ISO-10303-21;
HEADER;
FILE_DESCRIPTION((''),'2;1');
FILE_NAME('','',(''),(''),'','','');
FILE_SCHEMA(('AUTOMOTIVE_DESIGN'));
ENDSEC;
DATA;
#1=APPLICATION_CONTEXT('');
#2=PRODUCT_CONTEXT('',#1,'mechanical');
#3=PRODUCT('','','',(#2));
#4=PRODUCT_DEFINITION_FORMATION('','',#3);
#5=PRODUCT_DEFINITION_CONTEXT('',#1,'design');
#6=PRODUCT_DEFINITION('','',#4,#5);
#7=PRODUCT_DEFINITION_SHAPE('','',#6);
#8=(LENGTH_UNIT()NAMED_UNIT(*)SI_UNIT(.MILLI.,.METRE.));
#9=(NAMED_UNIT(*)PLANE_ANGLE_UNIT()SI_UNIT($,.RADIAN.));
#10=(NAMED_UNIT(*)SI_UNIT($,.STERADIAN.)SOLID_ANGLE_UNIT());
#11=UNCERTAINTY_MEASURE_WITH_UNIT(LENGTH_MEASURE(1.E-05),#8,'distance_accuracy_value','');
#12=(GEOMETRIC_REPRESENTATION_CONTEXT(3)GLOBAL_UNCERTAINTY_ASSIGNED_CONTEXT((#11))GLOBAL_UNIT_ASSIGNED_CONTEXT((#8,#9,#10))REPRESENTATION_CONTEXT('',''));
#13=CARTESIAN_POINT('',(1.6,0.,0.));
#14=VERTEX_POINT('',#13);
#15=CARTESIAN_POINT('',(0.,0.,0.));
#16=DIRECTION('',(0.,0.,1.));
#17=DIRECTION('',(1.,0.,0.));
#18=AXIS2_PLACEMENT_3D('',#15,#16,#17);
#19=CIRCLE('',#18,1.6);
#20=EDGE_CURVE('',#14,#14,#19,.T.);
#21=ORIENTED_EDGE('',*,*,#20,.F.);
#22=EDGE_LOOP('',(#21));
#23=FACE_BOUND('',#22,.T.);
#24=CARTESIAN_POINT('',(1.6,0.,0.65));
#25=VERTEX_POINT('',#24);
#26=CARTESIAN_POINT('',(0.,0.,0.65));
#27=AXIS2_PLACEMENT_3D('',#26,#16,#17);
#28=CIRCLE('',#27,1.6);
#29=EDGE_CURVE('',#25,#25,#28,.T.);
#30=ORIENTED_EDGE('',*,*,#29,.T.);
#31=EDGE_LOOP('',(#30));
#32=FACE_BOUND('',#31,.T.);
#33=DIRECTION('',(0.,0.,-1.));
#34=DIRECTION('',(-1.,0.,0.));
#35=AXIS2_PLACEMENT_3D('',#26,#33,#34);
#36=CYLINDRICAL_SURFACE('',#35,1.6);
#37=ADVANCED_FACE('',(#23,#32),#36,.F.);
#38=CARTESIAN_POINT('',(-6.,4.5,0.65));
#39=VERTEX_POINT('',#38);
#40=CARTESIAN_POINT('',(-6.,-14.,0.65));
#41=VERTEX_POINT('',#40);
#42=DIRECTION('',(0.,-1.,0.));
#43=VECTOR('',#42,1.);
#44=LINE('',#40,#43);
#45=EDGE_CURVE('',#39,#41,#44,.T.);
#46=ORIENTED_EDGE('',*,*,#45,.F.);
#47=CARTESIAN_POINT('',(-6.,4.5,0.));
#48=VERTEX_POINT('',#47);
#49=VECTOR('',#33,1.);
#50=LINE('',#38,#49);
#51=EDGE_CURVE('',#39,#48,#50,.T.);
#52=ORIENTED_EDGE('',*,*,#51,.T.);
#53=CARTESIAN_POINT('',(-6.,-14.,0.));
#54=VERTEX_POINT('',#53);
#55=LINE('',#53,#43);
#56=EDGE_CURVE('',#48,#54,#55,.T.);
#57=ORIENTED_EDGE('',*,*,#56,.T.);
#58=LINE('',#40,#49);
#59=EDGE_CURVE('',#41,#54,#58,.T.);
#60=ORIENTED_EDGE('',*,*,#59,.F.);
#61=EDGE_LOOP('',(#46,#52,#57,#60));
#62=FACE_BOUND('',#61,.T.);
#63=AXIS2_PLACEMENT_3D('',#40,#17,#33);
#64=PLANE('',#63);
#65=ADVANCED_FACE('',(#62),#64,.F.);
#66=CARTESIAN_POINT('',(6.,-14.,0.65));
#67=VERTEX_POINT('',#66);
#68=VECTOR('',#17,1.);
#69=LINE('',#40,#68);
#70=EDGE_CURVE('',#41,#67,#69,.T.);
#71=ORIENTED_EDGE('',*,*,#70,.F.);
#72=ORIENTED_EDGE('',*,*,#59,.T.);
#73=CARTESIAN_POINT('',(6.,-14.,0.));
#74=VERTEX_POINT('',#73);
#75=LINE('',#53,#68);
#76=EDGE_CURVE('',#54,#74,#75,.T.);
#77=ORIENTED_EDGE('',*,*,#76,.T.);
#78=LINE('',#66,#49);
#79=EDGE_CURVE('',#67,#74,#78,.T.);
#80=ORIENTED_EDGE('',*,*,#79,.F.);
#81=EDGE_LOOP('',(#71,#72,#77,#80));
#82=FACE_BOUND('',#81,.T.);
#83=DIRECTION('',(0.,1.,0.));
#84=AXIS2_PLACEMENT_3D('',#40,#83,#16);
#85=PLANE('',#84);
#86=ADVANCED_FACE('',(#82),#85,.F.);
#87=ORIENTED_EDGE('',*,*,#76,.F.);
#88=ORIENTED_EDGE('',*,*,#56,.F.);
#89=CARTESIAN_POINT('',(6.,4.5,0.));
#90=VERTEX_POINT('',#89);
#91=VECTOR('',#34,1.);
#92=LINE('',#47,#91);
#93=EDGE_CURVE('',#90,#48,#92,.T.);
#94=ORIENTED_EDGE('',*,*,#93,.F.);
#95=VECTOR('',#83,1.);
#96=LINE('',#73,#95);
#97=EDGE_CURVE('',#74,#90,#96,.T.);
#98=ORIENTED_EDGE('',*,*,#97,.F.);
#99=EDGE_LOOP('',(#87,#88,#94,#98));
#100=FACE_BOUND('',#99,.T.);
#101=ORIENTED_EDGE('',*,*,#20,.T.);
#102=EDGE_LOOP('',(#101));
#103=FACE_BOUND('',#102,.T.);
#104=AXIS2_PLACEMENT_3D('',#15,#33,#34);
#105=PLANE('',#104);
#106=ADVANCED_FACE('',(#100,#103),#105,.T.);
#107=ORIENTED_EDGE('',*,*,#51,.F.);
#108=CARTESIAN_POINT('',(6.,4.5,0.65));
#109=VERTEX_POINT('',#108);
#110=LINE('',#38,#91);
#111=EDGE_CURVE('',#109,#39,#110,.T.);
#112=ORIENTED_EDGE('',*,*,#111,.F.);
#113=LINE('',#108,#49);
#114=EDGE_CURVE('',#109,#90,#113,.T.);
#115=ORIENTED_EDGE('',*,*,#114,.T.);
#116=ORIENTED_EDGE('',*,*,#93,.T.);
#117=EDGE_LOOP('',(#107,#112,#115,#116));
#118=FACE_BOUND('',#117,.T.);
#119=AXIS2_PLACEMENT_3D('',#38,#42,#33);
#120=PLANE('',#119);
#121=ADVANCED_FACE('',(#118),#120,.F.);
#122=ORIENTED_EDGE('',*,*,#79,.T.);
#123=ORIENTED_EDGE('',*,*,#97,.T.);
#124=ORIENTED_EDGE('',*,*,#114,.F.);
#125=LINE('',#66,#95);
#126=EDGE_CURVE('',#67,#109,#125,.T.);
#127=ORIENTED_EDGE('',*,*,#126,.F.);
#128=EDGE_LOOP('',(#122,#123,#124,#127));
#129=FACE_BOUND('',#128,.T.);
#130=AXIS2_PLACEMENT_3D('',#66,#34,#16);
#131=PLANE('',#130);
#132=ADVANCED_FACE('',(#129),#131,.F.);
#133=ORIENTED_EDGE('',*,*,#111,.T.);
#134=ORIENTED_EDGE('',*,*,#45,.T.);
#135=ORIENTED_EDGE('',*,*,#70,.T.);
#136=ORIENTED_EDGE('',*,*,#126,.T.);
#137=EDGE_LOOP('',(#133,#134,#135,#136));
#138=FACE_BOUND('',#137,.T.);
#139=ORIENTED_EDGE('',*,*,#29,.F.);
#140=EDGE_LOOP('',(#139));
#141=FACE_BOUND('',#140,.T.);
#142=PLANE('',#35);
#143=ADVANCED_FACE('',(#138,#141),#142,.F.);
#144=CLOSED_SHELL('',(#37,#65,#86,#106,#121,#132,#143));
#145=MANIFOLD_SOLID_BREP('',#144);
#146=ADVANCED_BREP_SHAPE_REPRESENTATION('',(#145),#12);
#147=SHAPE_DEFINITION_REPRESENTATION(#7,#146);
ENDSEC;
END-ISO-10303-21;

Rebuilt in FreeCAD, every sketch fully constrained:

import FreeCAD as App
import Part
import Sketcher
from FreeCAD import Vector

doc = App.newDocument("Part")
body = doc.addObject("PartDesign::Body", "Body")

# Sketch on XY plane
sketch1 = body.newObject("Sketcher::SketchObject", "Sketch")
sketch1.AttachmentSupport = (doc.getObject("XY_Plane"), [""])
sketch1.MapMode = "FlatFace"
sketch1.addGeometry([
    Part.LineSegment(Vector(-6, 4.5, 0), Vector(-6, -14, 0)),  # 0
    Part.LineSegment(Vector(-6, -14, 0), Vector(6, -14, 0)),  # 1
    Part.LineSegment(Vector(6, -14, 0), Vector(6, 4.5, 0)),  # 2
    Part.LineSegment(Vector(6, 4.5, 0), Vector(-6, 4.5, 0)),  # 3
    Part.Circle(Vector(0, 0, 0), Vector(0, 0, 1), 1.6),  # 4
], False)
sketch1.addConstraint([
    Sketcher.Constraint("Coincident", 0, 2, 1, 1),
    Sketcher.Constraint("Coincident", 1, 2, 2, 1),
    Sketcher.Constraint("Coincident", 2, 2, 3, 1),
    Sketcher.Constraint("Coincident", 3, 2, 0, 1),
    Sketcher.Constraint("Vertical", 0),
    Sketcher.Constraint("Horizontal", 1),
    Sketcher.Constraint("Vertical", 2),
    Sketcher.Constraint("Horizontal", 3),
    Sketcher.Constraint("Coincident", 4, 3, -1, 1),
    Sketcher.Constraint("Diameter", 4, 3.2),
    Sketcher.Constraint("DistanceX", 1, 1, 1, 2, 12.0),
    Sketcher.Constraint("DistanceY", 0, 2, 0, 1, 18.5),
    Sketcher.Constraint("DistanceX", 0, 2, -1, 1, 6.0),
    Sketcher.Constraint("DistanceY", 0, 2, -1, 1, 14.0),
])
pad1 = body.newObject("PartDesign::Pad", "Pad")
pad1.Profile = sketch1
pad1.Length = 0.65

doc.recompute()
